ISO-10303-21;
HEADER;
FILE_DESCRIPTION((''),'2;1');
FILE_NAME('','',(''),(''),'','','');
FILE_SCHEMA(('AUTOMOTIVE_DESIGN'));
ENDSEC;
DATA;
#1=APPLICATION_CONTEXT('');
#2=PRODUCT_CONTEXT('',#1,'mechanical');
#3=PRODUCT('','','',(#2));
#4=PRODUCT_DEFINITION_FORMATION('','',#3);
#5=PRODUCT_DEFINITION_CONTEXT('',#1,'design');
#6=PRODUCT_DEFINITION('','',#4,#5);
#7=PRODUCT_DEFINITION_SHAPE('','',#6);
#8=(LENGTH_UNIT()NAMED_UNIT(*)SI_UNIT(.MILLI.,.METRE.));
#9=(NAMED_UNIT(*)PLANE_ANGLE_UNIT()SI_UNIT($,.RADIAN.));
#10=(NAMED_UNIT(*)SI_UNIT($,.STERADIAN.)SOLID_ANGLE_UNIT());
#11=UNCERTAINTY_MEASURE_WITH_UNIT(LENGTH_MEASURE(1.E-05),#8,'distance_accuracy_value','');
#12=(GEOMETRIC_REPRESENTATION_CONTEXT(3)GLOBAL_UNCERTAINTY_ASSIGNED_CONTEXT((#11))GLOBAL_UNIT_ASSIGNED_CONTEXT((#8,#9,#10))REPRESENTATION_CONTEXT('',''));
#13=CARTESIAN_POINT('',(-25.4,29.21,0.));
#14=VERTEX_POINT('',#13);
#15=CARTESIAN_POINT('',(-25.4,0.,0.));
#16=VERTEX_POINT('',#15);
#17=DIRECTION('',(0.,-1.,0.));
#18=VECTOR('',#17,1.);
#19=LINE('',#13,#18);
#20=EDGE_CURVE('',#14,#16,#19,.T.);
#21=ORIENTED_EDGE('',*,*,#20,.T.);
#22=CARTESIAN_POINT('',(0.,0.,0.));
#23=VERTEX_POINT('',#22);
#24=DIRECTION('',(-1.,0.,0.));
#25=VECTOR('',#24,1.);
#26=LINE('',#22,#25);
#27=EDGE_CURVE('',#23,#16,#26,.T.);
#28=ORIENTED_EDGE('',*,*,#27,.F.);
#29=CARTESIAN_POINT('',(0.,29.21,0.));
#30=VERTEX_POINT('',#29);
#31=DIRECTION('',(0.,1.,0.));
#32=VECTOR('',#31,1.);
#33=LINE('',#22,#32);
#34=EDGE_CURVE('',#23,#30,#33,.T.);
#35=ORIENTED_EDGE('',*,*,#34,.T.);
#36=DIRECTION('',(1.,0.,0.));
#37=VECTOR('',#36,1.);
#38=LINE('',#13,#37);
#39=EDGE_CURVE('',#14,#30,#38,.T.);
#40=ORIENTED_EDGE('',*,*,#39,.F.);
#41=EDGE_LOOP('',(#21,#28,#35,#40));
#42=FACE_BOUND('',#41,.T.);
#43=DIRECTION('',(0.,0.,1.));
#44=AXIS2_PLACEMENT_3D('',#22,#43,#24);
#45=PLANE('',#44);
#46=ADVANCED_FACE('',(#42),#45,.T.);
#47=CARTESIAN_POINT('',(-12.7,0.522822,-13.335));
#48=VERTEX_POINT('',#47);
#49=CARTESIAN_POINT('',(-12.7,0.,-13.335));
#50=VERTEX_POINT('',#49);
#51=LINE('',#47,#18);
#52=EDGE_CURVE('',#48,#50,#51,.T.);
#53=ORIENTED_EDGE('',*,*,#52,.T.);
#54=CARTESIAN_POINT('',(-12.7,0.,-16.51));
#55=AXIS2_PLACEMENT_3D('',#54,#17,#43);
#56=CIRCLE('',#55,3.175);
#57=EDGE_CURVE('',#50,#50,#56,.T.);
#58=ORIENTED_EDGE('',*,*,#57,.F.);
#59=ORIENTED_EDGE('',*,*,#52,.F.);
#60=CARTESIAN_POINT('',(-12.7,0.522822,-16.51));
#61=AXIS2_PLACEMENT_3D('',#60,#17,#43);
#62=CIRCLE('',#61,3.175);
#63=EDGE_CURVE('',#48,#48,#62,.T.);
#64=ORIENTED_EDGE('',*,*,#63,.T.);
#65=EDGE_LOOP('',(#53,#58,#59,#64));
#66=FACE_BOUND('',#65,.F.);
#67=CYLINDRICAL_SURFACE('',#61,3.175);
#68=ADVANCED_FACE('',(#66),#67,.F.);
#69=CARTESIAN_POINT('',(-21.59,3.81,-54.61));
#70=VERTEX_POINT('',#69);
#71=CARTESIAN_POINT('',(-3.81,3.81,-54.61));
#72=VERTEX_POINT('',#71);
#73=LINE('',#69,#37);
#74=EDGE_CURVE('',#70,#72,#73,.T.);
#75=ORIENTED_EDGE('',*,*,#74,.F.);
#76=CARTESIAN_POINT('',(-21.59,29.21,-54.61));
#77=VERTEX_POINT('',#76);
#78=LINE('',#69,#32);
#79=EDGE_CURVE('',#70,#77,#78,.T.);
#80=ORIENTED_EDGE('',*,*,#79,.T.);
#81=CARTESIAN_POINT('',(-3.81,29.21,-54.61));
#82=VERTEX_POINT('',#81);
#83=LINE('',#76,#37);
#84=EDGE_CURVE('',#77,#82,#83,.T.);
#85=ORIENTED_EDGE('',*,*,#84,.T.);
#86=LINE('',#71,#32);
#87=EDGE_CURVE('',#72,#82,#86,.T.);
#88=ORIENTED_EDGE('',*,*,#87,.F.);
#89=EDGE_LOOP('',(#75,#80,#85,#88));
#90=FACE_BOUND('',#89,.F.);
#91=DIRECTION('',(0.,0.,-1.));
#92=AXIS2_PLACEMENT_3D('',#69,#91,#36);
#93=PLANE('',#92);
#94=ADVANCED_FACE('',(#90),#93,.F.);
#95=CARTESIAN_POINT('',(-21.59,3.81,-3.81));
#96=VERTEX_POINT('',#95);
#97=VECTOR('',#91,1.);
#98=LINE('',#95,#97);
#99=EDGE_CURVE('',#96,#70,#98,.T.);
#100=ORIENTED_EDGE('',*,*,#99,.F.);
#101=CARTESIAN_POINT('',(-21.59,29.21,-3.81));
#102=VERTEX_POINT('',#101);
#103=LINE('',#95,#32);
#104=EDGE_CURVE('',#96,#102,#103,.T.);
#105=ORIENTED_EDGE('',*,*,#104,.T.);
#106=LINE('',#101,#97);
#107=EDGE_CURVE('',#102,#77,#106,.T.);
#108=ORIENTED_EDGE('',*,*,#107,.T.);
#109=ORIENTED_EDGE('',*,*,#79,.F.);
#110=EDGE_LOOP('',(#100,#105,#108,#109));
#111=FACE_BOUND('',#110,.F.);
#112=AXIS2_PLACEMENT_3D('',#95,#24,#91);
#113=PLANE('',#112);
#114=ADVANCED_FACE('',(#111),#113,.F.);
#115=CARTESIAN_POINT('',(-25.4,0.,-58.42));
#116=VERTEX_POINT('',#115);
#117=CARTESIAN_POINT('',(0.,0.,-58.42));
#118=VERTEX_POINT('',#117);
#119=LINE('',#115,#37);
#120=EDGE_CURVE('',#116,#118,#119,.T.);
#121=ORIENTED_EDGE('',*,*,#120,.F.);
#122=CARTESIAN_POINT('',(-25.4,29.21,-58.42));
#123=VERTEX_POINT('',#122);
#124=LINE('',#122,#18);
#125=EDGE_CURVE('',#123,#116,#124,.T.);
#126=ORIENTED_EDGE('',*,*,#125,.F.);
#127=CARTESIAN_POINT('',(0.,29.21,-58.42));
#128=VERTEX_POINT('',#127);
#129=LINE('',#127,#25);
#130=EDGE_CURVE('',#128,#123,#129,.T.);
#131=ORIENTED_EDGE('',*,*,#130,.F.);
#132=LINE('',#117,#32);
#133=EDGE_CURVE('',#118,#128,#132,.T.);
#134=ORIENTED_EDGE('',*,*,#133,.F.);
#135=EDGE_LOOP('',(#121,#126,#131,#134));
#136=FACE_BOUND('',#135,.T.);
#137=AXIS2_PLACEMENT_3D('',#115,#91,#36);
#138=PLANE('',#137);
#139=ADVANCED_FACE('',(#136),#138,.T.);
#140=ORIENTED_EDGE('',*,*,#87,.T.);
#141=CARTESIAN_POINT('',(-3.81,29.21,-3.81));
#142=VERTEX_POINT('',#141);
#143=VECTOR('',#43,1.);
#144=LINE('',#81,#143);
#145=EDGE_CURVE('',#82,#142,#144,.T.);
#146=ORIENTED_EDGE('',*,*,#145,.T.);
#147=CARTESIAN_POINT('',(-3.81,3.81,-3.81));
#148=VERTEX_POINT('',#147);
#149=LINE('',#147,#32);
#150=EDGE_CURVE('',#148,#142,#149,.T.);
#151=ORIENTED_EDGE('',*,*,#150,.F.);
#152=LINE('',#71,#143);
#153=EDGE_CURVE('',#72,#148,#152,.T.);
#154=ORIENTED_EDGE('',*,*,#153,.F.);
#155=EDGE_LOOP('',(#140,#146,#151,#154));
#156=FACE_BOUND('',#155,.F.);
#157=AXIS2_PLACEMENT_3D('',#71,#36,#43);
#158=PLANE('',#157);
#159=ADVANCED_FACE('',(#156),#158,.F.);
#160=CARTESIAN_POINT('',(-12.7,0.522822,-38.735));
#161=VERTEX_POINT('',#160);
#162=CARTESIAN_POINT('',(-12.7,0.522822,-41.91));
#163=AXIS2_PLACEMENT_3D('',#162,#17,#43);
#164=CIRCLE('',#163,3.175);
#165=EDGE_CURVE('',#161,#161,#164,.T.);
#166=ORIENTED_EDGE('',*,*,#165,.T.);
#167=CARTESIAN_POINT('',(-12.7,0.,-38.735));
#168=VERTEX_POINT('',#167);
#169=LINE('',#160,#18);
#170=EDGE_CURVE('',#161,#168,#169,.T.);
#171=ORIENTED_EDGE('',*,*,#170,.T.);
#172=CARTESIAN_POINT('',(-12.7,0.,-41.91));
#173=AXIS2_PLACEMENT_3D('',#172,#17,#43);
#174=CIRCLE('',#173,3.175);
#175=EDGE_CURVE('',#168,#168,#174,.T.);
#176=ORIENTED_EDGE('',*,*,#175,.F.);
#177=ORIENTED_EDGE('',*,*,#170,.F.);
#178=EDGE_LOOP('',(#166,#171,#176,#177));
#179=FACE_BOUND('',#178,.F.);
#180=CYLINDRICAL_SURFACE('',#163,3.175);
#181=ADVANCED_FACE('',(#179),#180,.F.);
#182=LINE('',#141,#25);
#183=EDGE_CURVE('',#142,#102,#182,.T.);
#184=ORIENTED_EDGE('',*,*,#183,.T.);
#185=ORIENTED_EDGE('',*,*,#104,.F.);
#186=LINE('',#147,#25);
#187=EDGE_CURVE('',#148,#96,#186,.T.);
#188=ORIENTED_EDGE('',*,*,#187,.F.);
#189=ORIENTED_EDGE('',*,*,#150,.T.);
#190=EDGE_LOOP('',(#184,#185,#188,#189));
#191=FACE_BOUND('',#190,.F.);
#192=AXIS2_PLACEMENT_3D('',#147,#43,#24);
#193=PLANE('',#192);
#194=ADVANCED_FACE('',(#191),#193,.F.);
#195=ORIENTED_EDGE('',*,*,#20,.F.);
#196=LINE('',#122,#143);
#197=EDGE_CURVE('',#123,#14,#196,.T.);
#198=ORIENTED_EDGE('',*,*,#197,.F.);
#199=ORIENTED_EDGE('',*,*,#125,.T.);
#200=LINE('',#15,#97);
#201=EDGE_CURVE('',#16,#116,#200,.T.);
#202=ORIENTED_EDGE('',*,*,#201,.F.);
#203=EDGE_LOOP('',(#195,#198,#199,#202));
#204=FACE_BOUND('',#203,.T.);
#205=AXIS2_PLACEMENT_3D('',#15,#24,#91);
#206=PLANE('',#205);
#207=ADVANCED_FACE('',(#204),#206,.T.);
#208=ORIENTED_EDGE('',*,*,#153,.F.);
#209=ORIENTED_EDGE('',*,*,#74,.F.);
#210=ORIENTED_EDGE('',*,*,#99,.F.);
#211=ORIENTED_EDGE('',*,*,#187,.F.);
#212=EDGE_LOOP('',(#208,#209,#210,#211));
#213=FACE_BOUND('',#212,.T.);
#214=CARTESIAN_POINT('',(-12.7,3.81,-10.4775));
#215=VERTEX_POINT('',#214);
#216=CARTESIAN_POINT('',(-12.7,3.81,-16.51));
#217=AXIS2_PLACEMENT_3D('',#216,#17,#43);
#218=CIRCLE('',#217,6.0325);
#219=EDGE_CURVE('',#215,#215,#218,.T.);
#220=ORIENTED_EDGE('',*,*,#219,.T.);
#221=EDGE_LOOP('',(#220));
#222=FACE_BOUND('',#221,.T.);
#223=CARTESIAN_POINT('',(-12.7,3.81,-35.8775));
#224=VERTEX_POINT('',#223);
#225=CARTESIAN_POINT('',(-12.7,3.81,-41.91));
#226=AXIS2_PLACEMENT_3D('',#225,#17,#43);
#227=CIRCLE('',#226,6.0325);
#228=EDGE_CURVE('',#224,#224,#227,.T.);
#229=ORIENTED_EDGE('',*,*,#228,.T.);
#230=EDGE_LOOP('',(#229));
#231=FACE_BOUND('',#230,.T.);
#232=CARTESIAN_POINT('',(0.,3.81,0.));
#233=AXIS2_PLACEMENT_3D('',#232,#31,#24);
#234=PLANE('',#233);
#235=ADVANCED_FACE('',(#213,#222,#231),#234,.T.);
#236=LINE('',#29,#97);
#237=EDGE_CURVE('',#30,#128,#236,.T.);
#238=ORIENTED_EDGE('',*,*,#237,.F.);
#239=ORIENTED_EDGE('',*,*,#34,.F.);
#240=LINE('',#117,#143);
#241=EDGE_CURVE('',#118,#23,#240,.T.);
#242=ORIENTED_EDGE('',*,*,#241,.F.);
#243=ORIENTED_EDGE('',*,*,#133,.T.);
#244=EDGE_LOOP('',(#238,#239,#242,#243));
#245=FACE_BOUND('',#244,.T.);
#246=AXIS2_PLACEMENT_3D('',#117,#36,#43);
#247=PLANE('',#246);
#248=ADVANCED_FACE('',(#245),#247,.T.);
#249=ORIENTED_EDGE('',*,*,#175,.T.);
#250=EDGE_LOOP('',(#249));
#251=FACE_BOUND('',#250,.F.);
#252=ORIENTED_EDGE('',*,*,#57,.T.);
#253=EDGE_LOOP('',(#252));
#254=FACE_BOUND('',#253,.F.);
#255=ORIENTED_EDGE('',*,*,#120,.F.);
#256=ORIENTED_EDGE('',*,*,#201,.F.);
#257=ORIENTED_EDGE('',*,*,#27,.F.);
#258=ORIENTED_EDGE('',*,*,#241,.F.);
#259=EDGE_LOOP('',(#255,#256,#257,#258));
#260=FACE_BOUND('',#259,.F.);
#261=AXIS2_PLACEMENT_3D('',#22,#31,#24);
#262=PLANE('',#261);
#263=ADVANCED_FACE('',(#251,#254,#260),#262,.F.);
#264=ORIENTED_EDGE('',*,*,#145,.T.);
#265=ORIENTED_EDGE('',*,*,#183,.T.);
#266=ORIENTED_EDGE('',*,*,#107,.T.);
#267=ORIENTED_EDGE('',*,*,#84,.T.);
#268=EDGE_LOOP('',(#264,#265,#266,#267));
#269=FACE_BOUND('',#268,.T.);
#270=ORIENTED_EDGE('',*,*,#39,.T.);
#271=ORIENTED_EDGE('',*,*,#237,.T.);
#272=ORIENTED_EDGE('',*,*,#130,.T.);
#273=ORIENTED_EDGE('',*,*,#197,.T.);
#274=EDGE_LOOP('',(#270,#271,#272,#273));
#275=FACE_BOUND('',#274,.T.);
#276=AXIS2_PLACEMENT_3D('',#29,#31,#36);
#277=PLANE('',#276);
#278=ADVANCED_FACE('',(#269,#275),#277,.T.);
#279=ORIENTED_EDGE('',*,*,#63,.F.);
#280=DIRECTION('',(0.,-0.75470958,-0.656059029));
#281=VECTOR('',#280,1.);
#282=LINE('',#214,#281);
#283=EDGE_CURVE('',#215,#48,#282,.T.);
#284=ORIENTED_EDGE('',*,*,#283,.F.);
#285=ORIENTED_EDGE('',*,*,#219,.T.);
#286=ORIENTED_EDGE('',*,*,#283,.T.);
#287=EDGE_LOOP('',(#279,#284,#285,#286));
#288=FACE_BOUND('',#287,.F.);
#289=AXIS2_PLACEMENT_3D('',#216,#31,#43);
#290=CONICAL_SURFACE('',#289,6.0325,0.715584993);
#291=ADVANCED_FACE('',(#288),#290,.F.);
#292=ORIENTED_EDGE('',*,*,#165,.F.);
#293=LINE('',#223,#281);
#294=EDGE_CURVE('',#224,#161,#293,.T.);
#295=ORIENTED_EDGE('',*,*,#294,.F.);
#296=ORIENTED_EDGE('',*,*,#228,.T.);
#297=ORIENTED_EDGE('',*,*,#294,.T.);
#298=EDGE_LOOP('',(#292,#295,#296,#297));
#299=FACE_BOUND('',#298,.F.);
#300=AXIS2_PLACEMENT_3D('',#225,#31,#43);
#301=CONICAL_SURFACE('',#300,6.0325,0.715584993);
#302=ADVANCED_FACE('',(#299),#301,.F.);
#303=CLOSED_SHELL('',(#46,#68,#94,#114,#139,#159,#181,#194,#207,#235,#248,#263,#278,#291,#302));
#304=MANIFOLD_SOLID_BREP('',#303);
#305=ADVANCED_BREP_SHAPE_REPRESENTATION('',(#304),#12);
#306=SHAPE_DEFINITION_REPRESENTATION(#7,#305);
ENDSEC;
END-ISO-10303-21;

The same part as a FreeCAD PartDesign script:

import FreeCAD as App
import Part
import Sketcher
from FreeCAD import Vector
Q = App.Units.Quantity

doc = App.newDocument("Part")
params = doc.addObject("Spreadsheet::Sheet", "Params")
for row, (alias, value) in enumerate([
    ("sketch1_width", "1 in"),
    ("sketch1_height", "2.3 in"),
    ("pad1_length", "0.15 in"),
    ("sketch2_height", "2 in"),
    ("sketch2_width", "0.7 in"),
    ("sketch2_width2", "1 in"),
    ("sketch2_height2", "2.3 in"),
    ("pad2_length", "1 in"),
    ("sketch3_diameter", "0.25 in"),
    ("hole_diameter", "0.25 in"),
    ("hole_csink_diameter", "0.475 in"),
], start=1):
    params.set(f"A{row}", alias)
    params.set(f"B{row}", "=" + value)
    params.setAlias(f"B{row}", alias)

body = doc.addObject("PartDesign::Body", "Body")

# Sketch on XZ plane
sketch1 = body.newObject("Sketcher::SketchObject", "Sketch")
sketch1.AttachmentSupport = (doc.getObject("XZ_Plane"), [""])
sketch1.MapMode = "FlatFace"
sketch1.addGeometry(Part.LineSegment(Vector(-25, 0, 0), Vector(0, 0, 0)), False)
sketch1.addGeometry(Part.LineSegment(Vector(0, 0, 0), Vector(0, -58, 0)), False)
sketch1.addGeometry(Part.LineSegment(Vector(0, -58, 0), Vector(-25, -58, 0)), False)
sketch1.addGeometry(Part.LineSegment(Vector(-25, -58, 0), Vector(-25, 0, 0)), False)
sketch1.addConstraint(Sketcher.Constraint("Coincident", 0, 2, 1, 1))
sketch1.addConstraint(Sketcher.Constraint("Coincident", 1, 2, 2, 1))
sketch1.addConstraint(Sketcher.Constraint("Coincident", 2, 2, 3, 1))
sketch1.addConstraint(Sketcher.Constraint("Coincident", 3, 2, 0, 1))
sketch1.addConstraint(Sketcher.Constraint("Horizontal", 0))
sketch1.addConstraint(Sketcher.Constraint("Vertical", 1))
sketch1.addConstraint(Sketcher.Constraint("Horizontal", 2))
sketch1.addConstraint(Sketcher.Constraint("Vertical", 3))
sketch1.addConstraint(Sketcher.Constraint("Coincident", 0, 2, -1, 1))
sketch1.addConstraint(Sketcher.Constraint("DistanceX", 0, 1, 0, 2, Q("1 in")))
sketch1.addConstraint(Sketcher.Constraint("DistanceY", 1, 2, 1, 1, Q("2.3 in")))
sketch1.setExpression("Constraints[9]", "Params.sketch1_width")
sketch1.setExpression("Constraints[10]", "Params.sketch1_height")
pad1 = body.newObject("PartDesign::Pad", "Pad")
pad1.Profile = sketch1
pad1.setExpression("Length", "Params.pad1_length")
pad1.Reversed = True

# Sketch on XZ plane
sketch2 = body.newObject("Sketcher::SketchObject", "Sketch001")
sketch2.AttachmentSupport = (doc.getObject("XZ_Plane"), [""])
sketch2.MapMode = "FlatFace"
sketch2.AttachmentOffset = App.Placement(Vector(0, 0, -0.15 * 25.4), App.Rotation())
sketch2.addGeometry(Part.LineSegment(Vector(0, -58, 0), Vector(-25, -58, 0)), False)
sketch2.addGeometry(Part.LineSegment(Vector(-25, -58, 0), Vector(-25, 0, 0)), False)
sketch2.addGeometry(Part.LineSegment(Vector(-25, 0, 0), Vector(0, 0, 0)), False)
sketch2.addGeometry(Part.LineSegment(Vector(0, 0, 0), Vector(0, -58, 0)), False)
sketch2.addGeometry(Part.LineSegment(Vector(-4, -55, 0), Vector(-4, -4, 0)), False)
sketch2.addGeometry(Part.LineSegment(Vector(-4, -4, 0), Vector(-22, -4, 0)), False)
sketch2.addGeometry(Part.LineSegment(Vector(-22, -4, 0), Vector(-22, -55, 0)), False)
sketch2.addGeometry(Part.LineSegment(Vector(-22, -55, 0), Vector(-4, -55, 0)), False)
sketch2.addConstraint(Sketcher.Constraint("Coincident", 0, 2, 1, 1))
sketch2.addConstraint(Sketcher.Constraint("Coincident", 1, 2, 2, 1))
sketch2.addConstraint(Sketcher.Constraint("Coincident", 2, 2, 3, 1))
sketch2.addConstraint(Sketcher.Constraint("Coincident", 3, 2, 0, 1))
sketch2.addConstraint(Sketcher.Constraint("Coincident", 4, 2, 5, 1))
sketch2.addConstraint(Sketcher.Constraint("Coincident", 5, 2, 6, 1))
sketch2.addConstraint(Sketcher.Constraint("Coincident", 6, 2, 7, 1))
sketch2.addConstraint(Sketcher.Constraint("Coincident", 7, 2, 4, 1))
sketch2.addConstraint(Sketcher.Constraint("Horizontal", 0))
sketch2.addConstraint(Sketcher.Constraint("Vertical", 1))
sketch2.addConstraint(Sketcher.Constraint("Horizontal", 2))
sketch2.addConstraint(Sketcher.Constraint("Vertical", 3))
sketch2.addConstraint(Sketcher.Constraint("Vertical", 4))
sketch2.addConstraint(Sketcher.Constraint("Horizontal", 5))
sketch2.addConstraint(Sketcher.Constraint("Vertical", 6))
sketch2.addConstraint(Sketcher.Constraint("Horizontal", 7))
sketch2.addConstraint(Sketcher.Constraint("Coincident", 2, 2, -1, 1))
sketch2.addConstraint(Sketcher.Constraint("DistanceY", 4, 1, 4, 2, Q("2 in")))
sketch2.addConstraint(Sketcher.Constraint("DistanceX", 5, 2, 5, 1, Q("0.7 in")))
sketch2.addConstraint(Sketcher.Constraint("DistanceX", 0, 2, 0, 1, Q("1 in")))
sketch2.addConstraint(Sketcher.Constraint("DistanceY", 1, 1, 1, 2, Q("2.3 in")))
sketch2.addConstraint(Sketcher.Constraint("DistanceX", 4, 2, -1, 1, Q("0.15 in")))
sketch2.addConstraint(Sketcher.Constraint("DistanceY", 4, 2, -1, 1, Q("0.15 in")))
sketch2.setExpression("Constraints[17]", "Params.sketch2_height")
sketch2.setExpression("Constraints[18]", "Params.sketch2_width")
sketch2.setExpression("Constraints[19]", "Params.sketch2_width2")
sketch2.setExpression("Constraints[20]", "Params.sketch2_height2")
pad2 = body.newObject("PartDesign::Pad", "Pad001")
pad2.Profile = sketch2
pad2.setExpression("Length", "Params.pad2_length")
pad2.Reversed = True

# Sketch on XZ plane
sketch3 = body.newObject("Sketcher::SketchObject", "Sketch002")
sketch3.AttachmentSupport = (doc.getObject("XZ_Plane"), [""])
sketch3.MapMode = "FlatFace"
sketch3.AttachmentOffset = App.Placement(Vector(0, 0, -0.15 * 25.4), App.Rotation())
sketch3.addGeometry(Part.Circle(Vector(-12.7, -16.5, 0), Vector(0, 0, 1), 3.2), False)
sketch3.addGeometry(Part.Circle(Vector(-12.7, -41.9, 0), Vector(0, 0, 1), 3.2), False)
sketch3.addConstraint(Sketcher.Constraint("Equal", 0, 1))
sketch3.addConstraint(Sketcher.Constraint("Vertical", 0, 3, 1, 3))
sketch3.addConstraint(Sketcher.Constraint("Diameter", 0, Q("0.25 in")))
sketch3.addConstraint(Sketcher.Constraint("DistanceY", 1, 3, 0, 3, Q("1 in")))
sketch3.addConstraint(Sketcher.Constraint("DistanceX", 0, 3, -1, 1, Q("0.5 in")))
sketch3.addConstraint(Sketcher.Constraint("DistanceY", 0, 3, -1, 1, Q("0.65 in")))
sketch3.setExpression("Constraints[2]", "Params.sketch3_diameter")
doc.recompute()
hole = body.newObject("PartDesign::Hole", "Hole")
hole.Profile = sketch3
hole.ThreadType = "None"
hole.setExpression("Diameter", "Params.hole_diameter")
hole.DepthType = "ThroughAll"
hole.HoleCutType = "Countersink"
hole.setExpression("HoleCutDiameter", "Params.hole_csink_diameter")
hole.HoleCutCountersinkAngle = 82
hole.Reversed = True

doc.recompute()
